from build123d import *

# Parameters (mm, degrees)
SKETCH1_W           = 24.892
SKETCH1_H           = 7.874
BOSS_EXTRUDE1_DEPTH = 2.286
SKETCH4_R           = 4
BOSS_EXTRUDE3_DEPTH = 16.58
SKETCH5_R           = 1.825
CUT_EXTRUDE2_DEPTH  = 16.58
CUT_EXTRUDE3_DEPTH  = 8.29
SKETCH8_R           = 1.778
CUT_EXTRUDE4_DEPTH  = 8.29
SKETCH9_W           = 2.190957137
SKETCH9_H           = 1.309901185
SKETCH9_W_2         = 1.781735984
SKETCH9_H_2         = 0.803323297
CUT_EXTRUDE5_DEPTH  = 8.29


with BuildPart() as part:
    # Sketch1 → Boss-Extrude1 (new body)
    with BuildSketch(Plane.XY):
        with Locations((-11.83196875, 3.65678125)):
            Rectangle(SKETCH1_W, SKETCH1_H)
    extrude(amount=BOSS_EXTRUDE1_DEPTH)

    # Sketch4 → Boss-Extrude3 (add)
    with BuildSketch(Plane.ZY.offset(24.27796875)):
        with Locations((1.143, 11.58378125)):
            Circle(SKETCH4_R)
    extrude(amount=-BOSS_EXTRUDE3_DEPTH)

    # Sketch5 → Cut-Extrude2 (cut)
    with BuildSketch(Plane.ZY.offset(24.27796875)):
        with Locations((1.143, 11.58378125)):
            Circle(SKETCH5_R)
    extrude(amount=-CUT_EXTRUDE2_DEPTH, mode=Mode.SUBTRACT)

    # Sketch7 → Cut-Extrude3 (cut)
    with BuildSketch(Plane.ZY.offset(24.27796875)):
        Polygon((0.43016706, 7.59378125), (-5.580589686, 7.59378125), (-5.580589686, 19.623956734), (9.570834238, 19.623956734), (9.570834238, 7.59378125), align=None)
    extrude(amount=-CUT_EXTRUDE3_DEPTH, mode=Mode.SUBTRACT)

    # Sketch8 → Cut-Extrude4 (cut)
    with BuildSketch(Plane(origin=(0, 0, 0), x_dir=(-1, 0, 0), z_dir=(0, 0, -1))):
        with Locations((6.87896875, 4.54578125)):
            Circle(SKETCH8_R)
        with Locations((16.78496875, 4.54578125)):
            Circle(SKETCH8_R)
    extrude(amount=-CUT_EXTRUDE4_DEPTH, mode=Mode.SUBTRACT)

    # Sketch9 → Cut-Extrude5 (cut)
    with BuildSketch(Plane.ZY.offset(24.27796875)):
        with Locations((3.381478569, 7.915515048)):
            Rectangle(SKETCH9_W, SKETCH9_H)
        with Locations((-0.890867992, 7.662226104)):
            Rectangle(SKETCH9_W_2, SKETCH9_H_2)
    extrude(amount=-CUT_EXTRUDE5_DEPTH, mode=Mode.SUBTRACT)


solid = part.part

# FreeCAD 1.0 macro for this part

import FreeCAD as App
import Part
import Sketcher

V = App.Vector
Q = App.Units.Quantity

doc = App.newDocument("Part")
body = doc.addObject("PartDesign::Body", "Body")

sketch1 = body.newObject("Sketcher::SketchObject", "Sketch")
sketch1.AttachmentSupport = (doc.getObject("XY_Plane"), [""])
sketch1.MapMode = "FlatFace"
sketch1.addGeometry(Part.LineSegment(V(-24.277969, 7.593781, 0), V(-24.277969, -0.280219, 0)), False)
sketch1.addGeometry(Part.LineSegment(V(-24.277969, -0.280219, 0), V(0.614031, -0.280219, 0)), False)
sketch1.addGeometry(Part.LineSegment(V(0.614031, -0.280219, 0), V(0.614031, 7.593781, 0)), False)
sketch1.addGeometry(Part.LineSegment(V(0.614031, 7.593781, 0), V(-24.277969, 7.593781, 0)), False)
sketch1.addConstraint(Sketcher.Constraint("Coincident", 0, 2, 1, 1))
sketch1.addConstraint(Sketcher.Constraint("Coincident", 1, 2, 2, 1))
sketch1.addConstraint(Sketcher.Constraint("Coincident", 2, 2, 3, 1))
sketch1.addConstraint(Sketcher.Constraint("Coincident", 3, 2, 0, 1))
sketch1.addConstraint(Sketcher.Constraint("Vertical", 0))
sketch1.addConstraint(Sketcher.Constraint("Horizontal", 1))
sketch1.addConstraint(Sketcher.Constraint("Vertical", 2))
sketch1.addConstraint(Sketcher.Constraint("Horizontal", 3))
sketch1.addConstraint(Sketcher.Constraint("DistanceX", 1, 1, 1, 2, Q("0.98 in")))
sketch1.addConstraint(Sketcher.Constraint("DistanceY", 0, 2, 0, 1, Q("0.31 in")))
sketch1.addConstraint(Sketcher.Constraint("DistanceX", 0, 2, -1, 1, Q("24.277969 mm")))
sketch1.addConstraint(Sketcher.Constraint("DistanceY", 0, 2, -1, 1, Q("0.280219 mm")))
pad1 = body.newObject("PartDesign::Pad", "Pad")
pad1.Profile = sketch1
pad1.Length = Q("0.09 in")

sketch2 = body.newObject("Sketcher::SketchObject", "Sketch001")
sketch2.AttachmentSupport = (doc.getObject("YZ_Plane"), [""])
sketch2.MapMode = "FlatFace"
sketch2.AttachmentOffset = App.Placement(V(0, 0, -24.277969), App.Rotation())
sketch2.addGeometry(Part.Circle(V(11.583781, 1.143, 0), V(0, 0, 1), 4), False)
sketch2.addConstraint(Sketcher.Constraint("Diameter", 0, Q("8 mm")))
sketch2.addConstraint(Sketcher.Constraint("DistanceY", -1, 1, 0, 3, Q("0.045 in")))
sketch2.addConstraint(Sketcher.Constraint("DistanceX", -1, 1, 0, 3, Q("11.583781 mm")))
pad2 = body.newObject("PartDesign::Pad", "Pad001")
pad2.Profile = sketch2
pad2.Length = 16.58

sketch3 = body.newObject("Sketcher::SketchObject", "Sketch002")
sketch3.AttachmentSupport = (doc.getObject("YZ_Plane"), [""])
sketch3.MapMode = "FlatFace"
sketch3.AttachmentOffset = App.Placement(V(0, 0, -24.277969), App.Rotation())
sketch3.addGeometry(Part.Circle(V(11.583781, 1.143, 0), V(0, 0, 1), 1.825), False)
sketch3.addConstraint(Sketcher.Constraint("Diameter", 0, Q("3.65 mm")))
sketch3.addConstraint(Sketcher.Constraint("DistanceY", -1, 1, 0, 3, Q("0.045 in")))
sketch3.addConstraint(Sketcher.Constraint("DistanceX", -1, 1, 0, 3, Q("11.583781 mm")))
pocket1 = body.newObject("PartDesign::Pocket", "Pocket")
pocket1.Profile = sketch3
pocket1.Length = 16.58
pocket1.Reversed = True

sketch4 = body.newObject("Sketcher::SketchObject", "Sketch003")
sketch4.AttachmentSupport = (doc.getObject("YZ_Plane"), [""])
sketch4.MapMode = "FlatFace"
sketch4.AttachmentOffset = App.Placement(V(0, 0, -24.277969), App.Rotation())
sketch4.addGeometry(Part.LineSegment(V(7.593781, -5.58059, 0), V(7.593781, 9.570834, 0)), False)
sketch4.addGeometry(Part.LineSegment(V(7.593781, 9.570834, 0), V(19.623957, 9.570834, 0)), False)
sketch4.addGeometry(Part.LineSegment(V(19.623957, 9.570834, 0), V(19.623957, -5.58059, 0)), False)
sketch4.addGeometry(Part.LineSegment(V(19.623957, -5.58059, 0), V(7.593781, -5.58059, 0)), False)
sketch4.addConstraint(Sketcher.Constraint("Coincident", 0, 2, 1, 1))
sketch4.addConstraint(Sketcher.Constraint("Coincident", 1, 2, 2, 1))
sketch4.addConstraint(Sketcher.Constraint("Coincident", 2, 2, 3, 1))
sketch4.addConstraint(Sketcher.Constraint("Coincident", 3, 2, 0, 1))
sketch4.addConstraint(Sketcher.Constraint("Vertical", 0))
sketch4.addConstraint(Sketcher.Constraint("Horizontal", 1))
sketch4.addConstraint(Sketcher.Constraint("Vertical", 2))
sketch4.addConstraint(Sketcher.Constraint("Horizontal", 3))
sketch4.addConstraint(Sketcher.Constraint("DistanceX", 1, 1, 1, 2, Q("12.030175 mm")))
sketch4.addConstraint(Sketcher.Constraint("DistanceY", 0, 1, 0, 2, Q("15.151424 mm")))
sketch4.addConstraint(Sketcher.Constraint("DistanceX", -1, 1, 0, 2, Q("7.593781 mm")))
sketch4.addConstraint(Sketcher.Constraint("DistanceY", 2, 2, -1, 1, Q("5.58059 mm")))
pocket2 = body.newObject("PartDesign::Pocket", "Pocket001")
pocket2.Profile = sketch4
pocket2.Length = 8.29
pocket2.Reversed = True

sketch5 = body.newObject("Sketcher::SketchObject", "Sketch004")
sketch5.AttachmentSupport = (doc.getObject("XY_Plane"), [""])
sketch5.MapMode = "FlatFace"
sketch5.addGeometry(Part.Circle(V(-6.878969, 4.545781, 0), V(0, 0, 1), 1.778), False)
sketch5.addGeometry(Part.Circle(V(-16.784969, 4.545781, 0), V(0, 0, 1), 1.778), False)
sketch5.addConstraint(Sketcher.Constraint("Equal", 0, 1))
sketch5.addConstraint(Sketcher.Constraint("Horizontal", 0, 3, 1, 3))
sketch5.addConstraint(Sketcher.Constraint("Diameter", 0, Q("0.14 in")))
sketch5.addConstraint(Sketcher.Constraint("DistanceX", 1, 3, 0, 3, Q("0.39 in")))
sketch5.addConstraint(Sketcher.Constraint("DistanceX", 0, 3, -1, 1, Q("6.878969 mm")))
sketch5.addConstraint(Sketcher.Constraint("DistanceY", -1, 1, 0, 3, Q("4.545781 mm")))
pocket3 = body.newObject("PartDesign::Pocket", "Pocket002")
pocket3.Profile = sketch5
pocket3.Length = 8.29
pocket3.Reversed = True

sketch6 = body.newObject("Sketcher::SketchObject", "Sketch005")
sketch6.AttachmentSupport = (doc.getObject("YZ_Plane"), [""])
sketch6.MapMode = "FlatFace"
sketch6.AttachmentOffset = App.Placement(V(0, 0, -24.277969), App.Rotation())
sketch6.addGeometry(Part.LineSegment(V(8.570466, 2.286, 0), V(7.260564, 2.286, 0)), False)
sketch6.addGeometry(Part.LineSegment(V(7.260564, 2.286, 0), V(7.260564, 4.476957, 0)), False)
sketch6.addGeometry(Part.LineSegment(V(7.260564, 4.476957, 0), V(8.570466, 4.476957, 0)), False)
sketch6.addGeometry(Part.LineSegment(V(8.570466, 4.476957, 0), V(8.570466, 2.286, 0)), False)
sketch6.addGeometry(Part.LineSegment(V(8.063888, -1.781736, 0), V(7.260564, -1.781736, 0)), False)
sketch6.addGeometry(Part.LineSegment(V(7.260564, -1.781736, 0), V(7.260564, 0, 0)), False)
sketch6.addGeometry(Part.LineSegment(V(7.260564, 0, 0), V(8.063888, 0, 0)), False)
sketch6.addGeometry(Part.LineSegment(V(8.063888, 0, 0), V(8.063888, -1.781736, 0)), False)
sketch6.addConstraint(Sketcher.Constraint("Coincident", 0, 2, 1, 1))
sketch6.addConstraint(Sketcher.Constraint("Coincident", 1, 2, 2, 1))
sketch6.addConstraint(Sketcher.Constraint("Coincident", 2, 2, 3, 1))
sketch6.addConstraint(Sketcher.Constraint("Coincident", 3, 2, 0, 1))
sketch6.addConstraint(Sketcher.Constraint("Coincident", 4, 2, 5, 1))
sketch6.addConstraint(Sketcher.Constraint("Coincident", 5, 2, 6, 1))
sketch6.addConstraint(Sketcher.Constraint("Coincident", 6, 2, 7, 1))
sketch6.addConstraint(Sketcher.Constraint("Coincident", 7, 2, 4, 1))
sketch6.addConstraint(Sketcher.Constraint("Horizontal", 0))
sketch6.addConstraint(Sketcher.Constraint("Vertical", 1))
sketch6.addConstraint(Sketcher.Constraint("Horizontal", 2))
sketch6.addConstraint(Sketcher.Constraint("Vertical", 3))
sketch6.addConstraint(Sketcher.Constraint("Horizontal", 4))
sketch6.addConstraint(Sketcher.Constraint("Vertical", 5))
sketch6.addConstraint(Sketcher.Constraint("Horizontal", 6))
sketch6.addConstraint(Sketcher.Constraint("Vertical", 7))
sketch6.addConstraint(Sketcher.Constraint("PointOnObject", 5, 2, -1))
sketch6.addConstraint(Sketcher.Constraint("Vertical", 1, 2, 4, 2))
sketch6.addConstraint(Sketcher.Constraint("DistanceY", -1, 1, 0, 2, Q("0.09 in")))
sketch6.addConstraint(Sketcher.Constraint("DistanceX", 0, 2, 0, 1, Q("1.309901 mm")))
sketch6.addConstraint(Sketcher.Constraint("DistanceX", 4, 2, 4, 1, Q("0.803323 mm")))
sketch6.addConstraint(Sketcher.Constraint("DistanceY", 1, 1, 1, 2, Q("2.190957 mm")))
sketch6.addConstraint(Sketcher.Constraint("DistanceY", 5, 1, 5, 2, Q("1.781736 mm")))
sketch6.addConstraint(Sketcher.Constraint("DistanceX", -1, 1, 0, 2, Q("7.260564 mm")))
pocket4 = body.newObject("PartDesign::Pocket", "Pocket003")
pocket4.Profile = sketch6
pocket4.Length = 8.29
pocket4.Reversed = True

doc.recompute()
